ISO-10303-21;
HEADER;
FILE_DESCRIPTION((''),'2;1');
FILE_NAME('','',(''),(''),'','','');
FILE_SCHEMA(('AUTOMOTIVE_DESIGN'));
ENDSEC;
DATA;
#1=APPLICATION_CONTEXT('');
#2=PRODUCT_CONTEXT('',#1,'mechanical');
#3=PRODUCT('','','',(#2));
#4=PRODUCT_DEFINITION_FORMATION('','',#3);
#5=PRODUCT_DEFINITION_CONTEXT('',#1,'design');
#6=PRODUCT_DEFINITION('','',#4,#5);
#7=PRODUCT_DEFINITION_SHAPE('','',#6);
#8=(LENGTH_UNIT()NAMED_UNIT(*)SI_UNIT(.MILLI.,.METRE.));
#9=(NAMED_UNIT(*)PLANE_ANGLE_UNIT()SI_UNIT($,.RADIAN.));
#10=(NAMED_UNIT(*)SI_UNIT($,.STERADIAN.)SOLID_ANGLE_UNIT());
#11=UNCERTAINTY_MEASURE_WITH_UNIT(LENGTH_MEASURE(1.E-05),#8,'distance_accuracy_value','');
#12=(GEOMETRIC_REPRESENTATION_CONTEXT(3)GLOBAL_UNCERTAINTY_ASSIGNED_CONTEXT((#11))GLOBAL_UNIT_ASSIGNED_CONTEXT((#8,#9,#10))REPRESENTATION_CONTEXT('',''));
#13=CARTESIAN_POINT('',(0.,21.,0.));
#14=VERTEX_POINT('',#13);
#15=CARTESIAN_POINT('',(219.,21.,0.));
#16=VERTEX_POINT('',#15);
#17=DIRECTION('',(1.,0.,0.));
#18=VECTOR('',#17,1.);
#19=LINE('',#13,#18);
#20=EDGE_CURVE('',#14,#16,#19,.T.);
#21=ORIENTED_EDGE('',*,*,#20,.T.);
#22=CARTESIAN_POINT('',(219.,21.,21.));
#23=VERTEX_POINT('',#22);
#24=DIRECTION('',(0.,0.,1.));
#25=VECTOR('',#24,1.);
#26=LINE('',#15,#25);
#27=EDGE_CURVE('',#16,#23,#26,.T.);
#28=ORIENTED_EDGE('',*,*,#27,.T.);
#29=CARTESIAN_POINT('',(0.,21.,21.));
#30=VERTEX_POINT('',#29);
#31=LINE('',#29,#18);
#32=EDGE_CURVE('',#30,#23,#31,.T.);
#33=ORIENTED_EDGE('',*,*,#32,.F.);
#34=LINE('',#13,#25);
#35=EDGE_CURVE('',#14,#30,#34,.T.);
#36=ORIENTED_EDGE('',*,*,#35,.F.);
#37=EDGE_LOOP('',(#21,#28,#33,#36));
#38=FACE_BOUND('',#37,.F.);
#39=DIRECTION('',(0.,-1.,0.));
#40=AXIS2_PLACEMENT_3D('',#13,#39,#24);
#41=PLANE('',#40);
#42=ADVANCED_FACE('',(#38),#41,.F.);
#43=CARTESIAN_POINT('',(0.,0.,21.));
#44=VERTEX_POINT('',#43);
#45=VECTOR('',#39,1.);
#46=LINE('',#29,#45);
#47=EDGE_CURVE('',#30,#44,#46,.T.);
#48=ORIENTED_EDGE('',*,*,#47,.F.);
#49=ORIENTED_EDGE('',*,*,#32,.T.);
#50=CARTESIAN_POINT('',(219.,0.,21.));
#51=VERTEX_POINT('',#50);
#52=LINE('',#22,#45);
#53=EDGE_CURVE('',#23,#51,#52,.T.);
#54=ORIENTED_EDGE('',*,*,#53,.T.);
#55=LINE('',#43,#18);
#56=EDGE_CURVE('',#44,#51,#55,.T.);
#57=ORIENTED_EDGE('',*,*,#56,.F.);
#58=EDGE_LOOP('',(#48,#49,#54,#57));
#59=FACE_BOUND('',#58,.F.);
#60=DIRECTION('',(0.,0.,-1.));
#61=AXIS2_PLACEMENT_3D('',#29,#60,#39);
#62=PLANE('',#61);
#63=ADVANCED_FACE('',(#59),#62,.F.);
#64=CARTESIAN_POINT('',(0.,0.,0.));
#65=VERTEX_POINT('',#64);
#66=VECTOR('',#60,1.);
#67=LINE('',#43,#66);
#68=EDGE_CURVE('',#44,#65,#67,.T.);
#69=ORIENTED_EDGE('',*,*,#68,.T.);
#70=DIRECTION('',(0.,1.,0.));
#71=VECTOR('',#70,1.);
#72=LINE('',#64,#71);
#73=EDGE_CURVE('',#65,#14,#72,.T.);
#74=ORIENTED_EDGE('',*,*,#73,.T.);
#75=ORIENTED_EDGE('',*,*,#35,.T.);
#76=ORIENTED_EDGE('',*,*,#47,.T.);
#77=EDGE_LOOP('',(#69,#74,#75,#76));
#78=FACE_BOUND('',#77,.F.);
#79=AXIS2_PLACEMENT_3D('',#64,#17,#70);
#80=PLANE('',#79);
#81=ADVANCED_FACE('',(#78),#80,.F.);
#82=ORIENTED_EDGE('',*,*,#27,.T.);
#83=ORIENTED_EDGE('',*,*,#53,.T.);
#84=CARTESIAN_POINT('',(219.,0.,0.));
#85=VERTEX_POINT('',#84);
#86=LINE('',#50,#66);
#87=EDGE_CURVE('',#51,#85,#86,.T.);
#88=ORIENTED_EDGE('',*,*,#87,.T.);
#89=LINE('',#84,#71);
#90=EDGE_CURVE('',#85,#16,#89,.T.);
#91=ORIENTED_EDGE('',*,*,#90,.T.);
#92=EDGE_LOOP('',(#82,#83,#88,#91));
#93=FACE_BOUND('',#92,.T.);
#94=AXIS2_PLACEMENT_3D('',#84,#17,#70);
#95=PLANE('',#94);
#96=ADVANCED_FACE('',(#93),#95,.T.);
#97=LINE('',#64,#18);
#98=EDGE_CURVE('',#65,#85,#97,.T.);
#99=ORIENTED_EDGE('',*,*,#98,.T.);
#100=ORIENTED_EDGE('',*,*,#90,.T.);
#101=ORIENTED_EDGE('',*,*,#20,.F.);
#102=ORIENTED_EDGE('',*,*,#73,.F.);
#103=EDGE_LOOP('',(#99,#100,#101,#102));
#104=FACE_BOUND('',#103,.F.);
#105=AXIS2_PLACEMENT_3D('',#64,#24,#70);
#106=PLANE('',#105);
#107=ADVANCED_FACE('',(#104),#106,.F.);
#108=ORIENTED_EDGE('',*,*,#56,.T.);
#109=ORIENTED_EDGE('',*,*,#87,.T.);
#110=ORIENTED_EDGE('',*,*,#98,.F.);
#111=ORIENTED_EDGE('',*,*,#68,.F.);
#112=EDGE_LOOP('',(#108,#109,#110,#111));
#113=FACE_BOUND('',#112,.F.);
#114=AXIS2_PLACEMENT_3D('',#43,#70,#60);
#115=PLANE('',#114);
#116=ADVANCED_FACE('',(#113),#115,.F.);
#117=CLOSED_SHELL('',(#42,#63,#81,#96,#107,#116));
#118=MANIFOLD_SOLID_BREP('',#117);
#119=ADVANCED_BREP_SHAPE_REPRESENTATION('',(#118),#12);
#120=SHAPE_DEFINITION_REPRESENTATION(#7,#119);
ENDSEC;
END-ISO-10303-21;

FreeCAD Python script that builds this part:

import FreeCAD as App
import Part
import Sketcher

V = App.Vector

doc = App.newDocument("Part")
body = doc.addObject("PartDesign::Body", "Body")

sketch1 = body.newObject("Sketcher::SketchObject", "Sketch")
sketch1.AttachmentSupport = (doc.getObject("YZ_Plane"), [""])
sketch1.MapMode = "FlatFace"
sketch1.addGeometry([
    Part.LineSegment(V(0, 21, 0), V(0, 0, 0)),
    Part.LineSegment(V(0, 0, 0), V(21, 0, 0)),
    Part.LineSegment(V(21, 0, 0), V(21, 21, 0)),
    Part.LineSegment(V(21, 21, 0), V(0, 21, 0)),
], False)
sketch1.addConstraint([
    Sketcher.Constraint("Coincident", 0, 2, 1, 1),
    Sketcher.Constraint("Coincident", 1, 2, 2, 1),
    Sketcher.Constraint("Coincident", 2, 2, 3, 1),
    Sketcher.Constraint("Coincident", 3, 2, 0, 1),
    Sketcher.Constraint("Vertical", 0),
    Sketcher.Constraint("Horizontal", 1),
    Sketcher.Constraint("Vertical", 2),
    Sketcher.Constraint("Horizontal", 3),
    Sketcher.Constraint("Coincident", 0, 2, -1, 1),
    Sketcher.Constraint("Equal", 3, 0),
    Sketcher.Constraint("DistanceX", 1, 1, 1, 2, 21.0),
])
pad1 = body.newObject("PartDesign::Pad", "Pad")
pad1.Profile = sketch1
pad1.Length = 219

doc.recompute()
